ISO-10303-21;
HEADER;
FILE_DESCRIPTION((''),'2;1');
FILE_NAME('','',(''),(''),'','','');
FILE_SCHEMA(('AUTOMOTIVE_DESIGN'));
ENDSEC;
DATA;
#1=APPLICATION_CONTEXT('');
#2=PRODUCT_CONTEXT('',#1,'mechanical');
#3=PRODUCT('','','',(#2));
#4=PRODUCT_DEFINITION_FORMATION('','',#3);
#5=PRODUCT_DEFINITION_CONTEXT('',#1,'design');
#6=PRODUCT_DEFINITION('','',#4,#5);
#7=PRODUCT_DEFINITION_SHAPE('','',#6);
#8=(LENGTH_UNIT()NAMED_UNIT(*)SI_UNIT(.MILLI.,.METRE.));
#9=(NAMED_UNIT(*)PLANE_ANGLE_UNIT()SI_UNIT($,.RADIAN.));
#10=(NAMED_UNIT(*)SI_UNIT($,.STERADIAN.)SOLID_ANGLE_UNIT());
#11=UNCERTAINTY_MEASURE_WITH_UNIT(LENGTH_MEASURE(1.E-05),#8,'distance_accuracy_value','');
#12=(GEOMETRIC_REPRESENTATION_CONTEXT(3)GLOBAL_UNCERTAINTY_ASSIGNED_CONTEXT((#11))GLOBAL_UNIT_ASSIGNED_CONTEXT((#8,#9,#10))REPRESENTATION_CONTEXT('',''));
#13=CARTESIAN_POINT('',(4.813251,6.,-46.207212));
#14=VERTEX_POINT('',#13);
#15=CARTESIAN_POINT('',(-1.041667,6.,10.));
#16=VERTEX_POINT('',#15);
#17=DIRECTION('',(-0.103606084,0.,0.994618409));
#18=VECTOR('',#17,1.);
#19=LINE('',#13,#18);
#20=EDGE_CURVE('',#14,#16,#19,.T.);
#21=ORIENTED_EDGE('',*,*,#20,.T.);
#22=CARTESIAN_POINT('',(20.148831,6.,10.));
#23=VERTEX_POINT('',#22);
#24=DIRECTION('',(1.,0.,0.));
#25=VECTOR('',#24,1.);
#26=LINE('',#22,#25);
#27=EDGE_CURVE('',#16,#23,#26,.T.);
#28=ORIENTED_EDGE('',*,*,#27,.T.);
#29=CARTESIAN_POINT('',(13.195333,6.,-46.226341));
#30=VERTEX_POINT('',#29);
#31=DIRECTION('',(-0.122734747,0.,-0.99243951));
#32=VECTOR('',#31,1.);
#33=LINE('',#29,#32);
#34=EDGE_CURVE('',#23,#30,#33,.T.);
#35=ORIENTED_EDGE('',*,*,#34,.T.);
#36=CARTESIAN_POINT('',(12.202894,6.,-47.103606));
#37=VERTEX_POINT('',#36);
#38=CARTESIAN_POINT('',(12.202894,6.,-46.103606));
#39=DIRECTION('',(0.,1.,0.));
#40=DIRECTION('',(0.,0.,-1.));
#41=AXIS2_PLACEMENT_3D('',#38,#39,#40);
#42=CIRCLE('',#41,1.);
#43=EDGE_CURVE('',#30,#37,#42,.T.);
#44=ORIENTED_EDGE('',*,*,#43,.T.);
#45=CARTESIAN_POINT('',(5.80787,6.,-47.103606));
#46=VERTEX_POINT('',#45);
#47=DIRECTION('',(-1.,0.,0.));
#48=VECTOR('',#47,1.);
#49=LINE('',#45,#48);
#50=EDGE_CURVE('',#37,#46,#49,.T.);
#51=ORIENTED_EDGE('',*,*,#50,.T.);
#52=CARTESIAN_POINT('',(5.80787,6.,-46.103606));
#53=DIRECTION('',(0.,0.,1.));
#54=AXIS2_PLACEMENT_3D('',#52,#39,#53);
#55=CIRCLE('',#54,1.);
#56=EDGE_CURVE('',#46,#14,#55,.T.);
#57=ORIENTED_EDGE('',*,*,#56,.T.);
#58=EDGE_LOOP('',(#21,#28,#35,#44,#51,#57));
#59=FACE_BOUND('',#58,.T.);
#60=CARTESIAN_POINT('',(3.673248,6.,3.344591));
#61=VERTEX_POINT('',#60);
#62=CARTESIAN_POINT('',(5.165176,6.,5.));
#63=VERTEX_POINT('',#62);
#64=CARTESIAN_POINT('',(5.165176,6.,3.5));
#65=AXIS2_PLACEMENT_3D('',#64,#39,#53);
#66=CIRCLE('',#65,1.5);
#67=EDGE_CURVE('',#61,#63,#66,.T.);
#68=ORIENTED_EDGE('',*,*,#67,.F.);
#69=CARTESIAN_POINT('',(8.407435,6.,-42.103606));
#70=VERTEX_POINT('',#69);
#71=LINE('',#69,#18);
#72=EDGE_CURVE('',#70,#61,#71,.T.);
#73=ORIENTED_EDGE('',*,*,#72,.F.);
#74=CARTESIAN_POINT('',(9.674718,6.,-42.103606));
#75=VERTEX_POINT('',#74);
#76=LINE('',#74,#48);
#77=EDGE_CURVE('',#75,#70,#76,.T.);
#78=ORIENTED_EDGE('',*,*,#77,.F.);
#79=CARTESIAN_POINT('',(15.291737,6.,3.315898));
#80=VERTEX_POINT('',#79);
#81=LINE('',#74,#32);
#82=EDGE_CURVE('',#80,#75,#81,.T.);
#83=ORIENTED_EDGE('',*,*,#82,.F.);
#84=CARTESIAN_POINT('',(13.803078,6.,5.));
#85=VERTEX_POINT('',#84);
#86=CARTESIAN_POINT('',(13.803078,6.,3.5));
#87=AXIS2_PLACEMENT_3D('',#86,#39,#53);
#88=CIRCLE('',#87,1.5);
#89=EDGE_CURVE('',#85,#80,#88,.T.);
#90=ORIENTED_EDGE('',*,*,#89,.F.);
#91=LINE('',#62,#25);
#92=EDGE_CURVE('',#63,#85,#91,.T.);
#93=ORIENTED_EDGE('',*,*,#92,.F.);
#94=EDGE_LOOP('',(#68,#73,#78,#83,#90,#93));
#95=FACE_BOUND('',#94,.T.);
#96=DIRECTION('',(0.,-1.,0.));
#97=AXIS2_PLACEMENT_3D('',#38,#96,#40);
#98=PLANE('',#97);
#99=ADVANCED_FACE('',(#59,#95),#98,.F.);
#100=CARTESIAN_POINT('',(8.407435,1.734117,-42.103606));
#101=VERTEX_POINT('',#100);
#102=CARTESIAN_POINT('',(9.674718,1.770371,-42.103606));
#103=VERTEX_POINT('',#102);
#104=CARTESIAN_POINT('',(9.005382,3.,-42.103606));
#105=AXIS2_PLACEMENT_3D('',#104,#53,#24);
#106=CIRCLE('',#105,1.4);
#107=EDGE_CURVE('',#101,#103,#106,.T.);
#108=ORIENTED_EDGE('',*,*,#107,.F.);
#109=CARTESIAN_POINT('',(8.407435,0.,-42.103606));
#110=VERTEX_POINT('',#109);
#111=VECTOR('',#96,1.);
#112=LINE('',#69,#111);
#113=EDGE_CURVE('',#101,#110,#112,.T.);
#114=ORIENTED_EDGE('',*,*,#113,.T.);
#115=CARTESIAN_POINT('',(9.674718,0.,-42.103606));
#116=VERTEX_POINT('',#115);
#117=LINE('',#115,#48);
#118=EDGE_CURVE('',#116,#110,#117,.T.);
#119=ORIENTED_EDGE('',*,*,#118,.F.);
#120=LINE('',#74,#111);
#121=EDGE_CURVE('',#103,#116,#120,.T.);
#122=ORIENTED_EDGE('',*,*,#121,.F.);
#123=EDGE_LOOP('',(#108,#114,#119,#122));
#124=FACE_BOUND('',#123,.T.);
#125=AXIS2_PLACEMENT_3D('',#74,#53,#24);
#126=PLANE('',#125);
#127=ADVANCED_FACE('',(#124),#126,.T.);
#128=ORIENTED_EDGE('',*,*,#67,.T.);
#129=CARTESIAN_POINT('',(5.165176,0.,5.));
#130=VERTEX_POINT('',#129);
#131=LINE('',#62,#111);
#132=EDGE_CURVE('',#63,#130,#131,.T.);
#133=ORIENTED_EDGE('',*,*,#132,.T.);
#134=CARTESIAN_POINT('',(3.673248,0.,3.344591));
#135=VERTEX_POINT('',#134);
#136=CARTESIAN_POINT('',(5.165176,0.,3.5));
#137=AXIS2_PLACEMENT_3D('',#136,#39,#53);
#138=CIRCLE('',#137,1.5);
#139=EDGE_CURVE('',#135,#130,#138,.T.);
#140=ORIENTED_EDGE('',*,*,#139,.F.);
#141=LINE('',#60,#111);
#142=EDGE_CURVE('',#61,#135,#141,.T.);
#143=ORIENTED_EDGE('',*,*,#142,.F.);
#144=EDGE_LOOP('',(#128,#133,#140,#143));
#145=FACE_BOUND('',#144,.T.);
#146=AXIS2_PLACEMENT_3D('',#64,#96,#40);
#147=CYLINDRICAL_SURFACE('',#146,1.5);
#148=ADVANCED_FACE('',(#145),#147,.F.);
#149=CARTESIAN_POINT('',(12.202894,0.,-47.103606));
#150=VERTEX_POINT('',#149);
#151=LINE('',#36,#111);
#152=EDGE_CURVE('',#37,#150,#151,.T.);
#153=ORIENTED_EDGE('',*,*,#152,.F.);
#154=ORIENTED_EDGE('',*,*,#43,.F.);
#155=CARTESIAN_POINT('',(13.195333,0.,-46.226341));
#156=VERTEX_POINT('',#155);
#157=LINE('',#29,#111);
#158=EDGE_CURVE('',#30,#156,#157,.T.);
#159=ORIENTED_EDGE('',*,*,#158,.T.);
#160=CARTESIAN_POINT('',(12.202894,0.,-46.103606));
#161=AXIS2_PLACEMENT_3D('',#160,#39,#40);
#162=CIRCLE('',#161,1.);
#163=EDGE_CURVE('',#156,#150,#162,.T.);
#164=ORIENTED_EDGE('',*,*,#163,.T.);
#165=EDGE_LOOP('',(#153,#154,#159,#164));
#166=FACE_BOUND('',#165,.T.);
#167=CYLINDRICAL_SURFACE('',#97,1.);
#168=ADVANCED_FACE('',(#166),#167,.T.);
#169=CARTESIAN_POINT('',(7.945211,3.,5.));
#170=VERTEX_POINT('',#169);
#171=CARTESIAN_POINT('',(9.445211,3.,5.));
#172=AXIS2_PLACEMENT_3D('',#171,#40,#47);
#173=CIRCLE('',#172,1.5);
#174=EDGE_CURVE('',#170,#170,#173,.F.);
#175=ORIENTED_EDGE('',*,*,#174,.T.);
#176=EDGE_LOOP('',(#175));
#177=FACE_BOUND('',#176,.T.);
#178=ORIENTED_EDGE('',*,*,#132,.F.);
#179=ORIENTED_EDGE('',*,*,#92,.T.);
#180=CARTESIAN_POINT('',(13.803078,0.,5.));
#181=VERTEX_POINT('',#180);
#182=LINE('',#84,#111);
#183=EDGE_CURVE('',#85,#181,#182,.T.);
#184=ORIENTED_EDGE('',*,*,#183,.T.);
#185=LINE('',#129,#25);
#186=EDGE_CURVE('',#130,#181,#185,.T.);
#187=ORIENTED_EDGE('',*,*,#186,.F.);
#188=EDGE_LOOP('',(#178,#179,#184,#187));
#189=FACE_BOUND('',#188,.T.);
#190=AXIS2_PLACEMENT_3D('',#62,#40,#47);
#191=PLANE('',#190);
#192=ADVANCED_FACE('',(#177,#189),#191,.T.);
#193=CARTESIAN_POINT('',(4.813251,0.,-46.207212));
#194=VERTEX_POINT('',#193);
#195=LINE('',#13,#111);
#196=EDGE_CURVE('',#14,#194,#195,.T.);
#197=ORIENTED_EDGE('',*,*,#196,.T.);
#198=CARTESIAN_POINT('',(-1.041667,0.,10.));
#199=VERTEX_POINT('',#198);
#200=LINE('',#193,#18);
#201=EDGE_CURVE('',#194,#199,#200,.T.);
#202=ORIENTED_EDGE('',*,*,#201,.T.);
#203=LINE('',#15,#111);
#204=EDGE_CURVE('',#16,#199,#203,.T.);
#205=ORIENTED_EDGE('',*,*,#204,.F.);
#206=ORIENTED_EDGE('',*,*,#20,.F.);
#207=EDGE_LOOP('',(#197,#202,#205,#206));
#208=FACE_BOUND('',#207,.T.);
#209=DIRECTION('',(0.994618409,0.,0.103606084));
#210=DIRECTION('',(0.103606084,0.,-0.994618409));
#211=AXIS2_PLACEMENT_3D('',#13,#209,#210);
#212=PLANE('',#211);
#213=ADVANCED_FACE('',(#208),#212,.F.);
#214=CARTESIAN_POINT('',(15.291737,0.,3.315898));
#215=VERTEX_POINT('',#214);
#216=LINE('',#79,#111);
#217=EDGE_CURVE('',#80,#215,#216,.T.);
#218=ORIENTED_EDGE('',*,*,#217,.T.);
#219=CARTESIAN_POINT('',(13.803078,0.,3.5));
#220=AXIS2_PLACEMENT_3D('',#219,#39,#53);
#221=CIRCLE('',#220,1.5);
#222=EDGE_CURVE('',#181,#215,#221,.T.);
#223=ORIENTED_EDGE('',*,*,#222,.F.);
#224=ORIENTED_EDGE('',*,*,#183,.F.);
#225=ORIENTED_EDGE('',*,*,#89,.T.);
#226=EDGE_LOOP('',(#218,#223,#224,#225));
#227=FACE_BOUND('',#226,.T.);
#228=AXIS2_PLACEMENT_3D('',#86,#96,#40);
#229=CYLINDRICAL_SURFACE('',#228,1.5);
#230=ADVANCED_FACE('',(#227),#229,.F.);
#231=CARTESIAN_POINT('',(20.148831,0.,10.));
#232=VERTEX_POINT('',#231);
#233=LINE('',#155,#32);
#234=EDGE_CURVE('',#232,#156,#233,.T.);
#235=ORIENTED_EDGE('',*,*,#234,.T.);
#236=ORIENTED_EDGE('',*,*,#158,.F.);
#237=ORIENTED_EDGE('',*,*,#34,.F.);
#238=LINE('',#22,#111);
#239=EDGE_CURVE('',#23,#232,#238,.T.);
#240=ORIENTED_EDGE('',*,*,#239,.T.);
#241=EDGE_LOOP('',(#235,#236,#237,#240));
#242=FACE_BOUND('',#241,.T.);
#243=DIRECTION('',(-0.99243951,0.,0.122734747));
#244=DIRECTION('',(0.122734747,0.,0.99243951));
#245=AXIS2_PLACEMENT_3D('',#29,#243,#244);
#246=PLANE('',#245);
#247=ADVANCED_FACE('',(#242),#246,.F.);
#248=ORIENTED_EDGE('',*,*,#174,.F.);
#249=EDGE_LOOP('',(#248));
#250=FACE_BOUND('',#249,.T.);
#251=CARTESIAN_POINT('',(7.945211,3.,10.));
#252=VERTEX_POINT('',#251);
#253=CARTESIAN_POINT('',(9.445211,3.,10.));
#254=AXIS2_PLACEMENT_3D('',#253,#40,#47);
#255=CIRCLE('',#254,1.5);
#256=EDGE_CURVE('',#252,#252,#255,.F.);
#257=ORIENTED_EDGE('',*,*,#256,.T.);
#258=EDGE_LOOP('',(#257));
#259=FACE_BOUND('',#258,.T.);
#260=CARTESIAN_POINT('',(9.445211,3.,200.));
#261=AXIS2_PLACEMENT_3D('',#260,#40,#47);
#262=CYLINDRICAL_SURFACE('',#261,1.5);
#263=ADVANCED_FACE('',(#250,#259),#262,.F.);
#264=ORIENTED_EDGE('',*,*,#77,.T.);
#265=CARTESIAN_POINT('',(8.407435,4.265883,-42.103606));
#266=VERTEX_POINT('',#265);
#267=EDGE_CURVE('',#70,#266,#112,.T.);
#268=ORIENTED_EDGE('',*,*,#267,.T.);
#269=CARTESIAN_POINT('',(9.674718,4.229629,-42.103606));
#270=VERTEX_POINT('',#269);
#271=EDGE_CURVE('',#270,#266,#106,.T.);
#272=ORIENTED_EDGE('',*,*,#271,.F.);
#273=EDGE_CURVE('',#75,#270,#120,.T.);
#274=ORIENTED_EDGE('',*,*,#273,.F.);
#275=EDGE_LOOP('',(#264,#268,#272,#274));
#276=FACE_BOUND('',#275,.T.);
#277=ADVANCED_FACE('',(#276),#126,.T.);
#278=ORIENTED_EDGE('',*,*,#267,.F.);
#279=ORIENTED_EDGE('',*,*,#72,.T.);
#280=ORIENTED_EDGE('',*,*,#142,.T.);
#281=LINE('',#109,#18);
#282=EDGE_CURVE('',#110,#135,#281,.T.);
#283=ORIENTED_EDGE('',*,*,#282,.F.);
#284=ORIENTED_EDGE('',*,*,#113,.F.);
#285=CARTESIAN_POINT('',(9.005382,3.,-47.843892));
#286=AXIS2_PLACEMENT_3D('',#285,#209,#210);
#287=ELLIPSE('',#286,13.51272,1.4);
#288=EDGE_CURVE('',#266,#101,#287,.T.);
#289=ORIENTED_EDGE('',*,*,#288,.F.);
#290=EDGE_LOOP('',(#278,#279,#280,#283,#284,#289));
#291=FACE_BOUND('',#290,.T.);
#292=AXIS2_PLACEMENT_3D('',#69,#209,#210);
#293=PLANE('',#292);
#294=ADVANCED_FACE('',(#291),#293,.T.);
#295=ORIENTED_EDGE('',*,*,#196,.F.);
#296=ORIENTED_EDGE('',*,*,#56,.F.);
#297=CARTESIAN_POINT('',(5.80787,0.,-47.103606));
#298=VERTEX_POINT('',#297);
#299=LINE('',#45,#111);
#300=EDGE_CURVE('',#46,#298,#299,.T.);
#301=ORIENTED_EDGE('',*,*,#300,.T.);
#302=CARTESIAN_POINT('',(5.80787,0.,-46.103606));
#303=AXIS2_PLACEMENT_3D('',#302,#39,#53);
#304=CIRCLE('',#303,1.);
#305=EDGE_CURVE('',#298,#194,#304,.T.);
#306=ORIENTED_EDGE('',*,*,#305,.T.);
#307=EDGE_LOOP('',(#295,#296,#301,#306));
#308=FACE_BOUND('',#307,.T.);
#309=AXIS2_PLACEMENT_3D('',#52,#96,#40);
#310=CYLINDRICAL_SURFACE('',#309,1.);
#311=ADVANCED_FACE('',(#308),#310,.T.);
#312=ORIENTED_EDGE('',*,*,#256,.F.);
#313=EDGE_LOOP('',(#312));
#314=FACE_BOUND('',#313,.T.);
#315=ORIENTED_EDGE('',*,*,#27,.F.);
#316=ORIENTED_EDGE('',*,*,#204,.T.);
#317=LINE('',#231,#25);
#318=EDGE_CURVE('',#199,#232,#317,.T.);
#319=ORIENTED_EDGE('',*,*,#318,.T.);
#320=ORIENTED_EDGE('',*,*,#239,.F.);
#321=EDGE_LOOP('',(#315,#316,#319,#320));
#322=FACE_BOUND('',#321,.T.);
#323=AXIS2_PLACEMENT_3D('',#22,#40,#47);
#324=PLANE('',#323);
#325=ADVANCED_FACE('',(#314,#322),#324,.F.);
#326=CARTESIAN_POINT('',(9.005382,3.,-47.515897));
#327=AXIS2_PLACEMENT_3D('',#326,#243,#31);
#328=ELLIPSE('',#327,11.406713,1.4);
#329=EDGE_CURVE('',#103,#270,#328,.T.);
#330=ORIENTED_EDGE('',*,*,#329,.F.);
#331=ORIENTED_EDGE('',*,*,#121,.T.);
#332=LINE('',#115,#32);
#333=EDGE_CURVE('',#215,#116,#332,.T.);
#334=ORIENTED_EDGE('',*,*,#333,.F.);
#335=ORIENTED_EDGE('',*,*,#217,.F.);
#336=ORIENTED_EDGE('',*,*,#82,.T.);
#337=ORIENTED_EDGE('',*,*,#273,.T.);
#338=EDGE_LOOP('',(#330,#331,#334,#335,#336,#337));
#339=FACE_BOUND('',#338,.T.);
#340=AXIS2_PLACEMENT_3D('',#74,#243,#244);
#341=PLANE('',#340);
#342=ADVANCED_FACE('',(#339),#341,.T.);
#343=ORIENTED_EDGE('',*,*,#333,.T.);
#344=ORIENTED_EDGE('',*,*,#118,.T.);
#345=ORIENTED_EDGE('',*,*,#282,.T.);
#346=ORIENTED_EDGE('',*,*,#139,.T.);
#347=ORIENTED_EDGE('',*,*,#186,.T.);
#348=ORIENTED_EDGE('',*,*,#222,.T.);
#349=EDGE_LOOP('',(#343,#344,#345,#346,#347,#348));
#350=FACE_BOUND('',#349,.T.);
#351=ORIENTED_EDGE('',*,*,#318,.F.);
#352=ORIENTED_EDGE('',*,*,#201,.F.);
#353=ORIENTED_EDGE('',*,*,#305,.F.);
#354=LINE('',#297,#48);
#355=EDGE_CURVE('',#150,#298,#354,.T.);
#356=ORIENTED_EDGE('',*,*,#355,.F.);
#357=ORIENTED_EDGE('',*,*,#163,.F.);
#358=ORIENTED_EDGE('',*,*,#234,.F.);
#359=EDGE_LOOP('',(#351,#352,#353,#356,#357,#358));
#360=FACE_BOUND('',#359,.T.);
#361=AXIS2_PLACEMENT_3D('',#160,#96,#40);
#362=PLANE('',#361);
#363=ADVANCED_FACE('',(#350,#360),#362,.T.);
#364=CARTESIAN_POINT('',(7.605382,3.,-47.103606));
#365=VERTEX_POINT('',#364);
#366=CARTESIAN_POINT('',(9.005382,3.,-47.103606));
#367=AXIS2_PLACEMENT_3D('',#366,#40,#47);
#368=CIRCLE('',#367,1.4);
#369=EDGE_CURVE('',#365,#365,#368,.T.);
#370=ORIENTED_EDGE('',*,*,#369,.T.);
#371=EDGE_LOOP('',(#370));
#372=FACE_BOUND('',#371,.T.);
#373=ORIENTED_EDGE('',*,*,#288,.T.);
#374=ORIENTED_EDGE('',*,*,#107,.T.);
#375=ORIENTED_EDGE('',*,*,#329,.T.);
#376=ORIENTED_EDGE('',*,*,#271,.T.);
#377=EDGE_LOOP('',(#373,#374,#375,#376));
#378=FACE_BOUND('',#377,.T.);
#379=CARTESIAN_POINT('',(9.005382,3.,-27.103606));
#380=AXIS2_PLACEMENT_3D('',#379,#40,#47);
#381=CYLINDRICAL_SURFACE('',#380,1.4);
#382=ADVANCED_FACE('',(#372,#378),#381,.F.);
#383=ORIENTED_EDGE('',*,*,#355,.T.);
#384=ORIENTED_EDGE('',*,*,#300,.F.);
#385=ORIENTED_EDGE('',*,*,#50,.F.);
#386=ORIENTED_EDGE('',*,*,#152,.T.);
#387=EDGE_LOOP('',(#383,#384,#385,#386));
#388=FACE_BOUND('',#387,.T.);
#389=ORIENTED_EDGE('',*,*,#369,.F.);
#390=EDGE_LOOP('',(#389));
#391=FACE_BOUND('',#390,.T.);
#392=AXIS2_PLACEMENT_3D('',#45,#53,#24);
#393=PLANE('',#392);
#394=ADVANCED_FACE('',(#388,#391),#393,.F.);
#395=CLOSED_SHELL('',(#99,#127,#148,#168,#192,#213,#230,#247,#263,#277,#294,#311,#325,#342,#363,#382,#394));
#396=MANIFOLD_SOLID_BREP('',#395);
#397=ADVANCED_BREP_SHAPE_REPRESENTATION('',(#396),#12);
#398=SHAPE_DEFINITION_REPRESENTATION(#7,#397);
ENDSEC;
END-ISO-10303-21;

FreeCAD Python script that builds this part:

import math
import FreeCAD as App
import Part
import Sketcher
Q = App.Units.Quantity

doc = App.newDocument("Part")
body = doc.addObject("PartDesign::Body", "Body")

sketch1 = doc.addObject("Sketcher::SketchObject", "Sketch")
body.addObject(sketch1)
sketch1.AttachmentSupport = (doc.XZ_Plane, [""])
sketch1.MapMode = "FlatFace"
sketch1.addGeometry(Part.LineSegment(App.Vector(12.202894, -47.103606, 0), App.Vector(5.80787, -47.103606, 0)), False)
sketch1.addGeometry(Part.ArcOfCircle(Part.Circle(App.Vector(5.80787, -46.103606, 0), App.Vector(0, 0, 1), 1), math.radians(-174.053137), math.radians(-90)), False)
sketch1.addGeometry(Part.LineSegment(App.Vector(4.813251, -46.207212, 0), App.Vector(-1.041667, 10, 0)), False)
sketch1.addGeometry(Part.LineSegment(App.Vector(-1.041667, 10, 0), App.Vector(20.148831, 10, 0)), False)
sketch1.addGeometry(Part.LineSegment(App.Vector(20.148831, 10, 0), App.Vector(13.195333, -46.226341, 0)), False)
sketch1.addGeometry(Part.ArcOfCircle(Part.Circle(App.Vector(12.202894, -46.103606, 0), App.Vector(0, 0, 1), 1), math.radians(-90), math.radians(-7.049959)), False)
sketch1.addGeometry(Part.LineSegment(App.Vector(9.674718, -42.103606, 0), App.Vector(15.291737, 3.315898, 0)), False)
sketch1.addGeometry(Part.ArcOfCircle(Part.Circle(App.Vector(13.803078, 3.5, 0), App.Vector(0, 0, 1), 1.5), math.radians(-7.049959), math.radians(90)), False)
sketch1.addGeometry(Part.LineSegment(App.Vector(13.803078, 5, 0), App.Vector(5.165176, 5, 0)), False)
sketch1.addGeometry(Part.ArcOfCircle(Part.Circle(App.Vector(5.165176, 3.5, 0), App.Vector(0, 0, 1), 1.5), math.radians(90), math.radians(185.946863)), False)
sketch1.addGeometry(Part.LineSegment(App.Vector(3.673248, 3.344591, 0), App.Vector(8.407435, -42.103606, 0)), False)
sketch1.addGeometry(Part.LineSegment(App.Vector(8.407435, -42.103606, 0), App.Vector(9.674718, -42.103606, 0)), False)
sketch1.addConstraint(Sketcher.Constraint("Tangent", 0, 2, 1, 2))
sketch1.addConstraint(Sketcher.Constraint("Tangent", 1, 1, 2, 1))
sketch1.addConstraint(Sketcher.Constraint("Coincident", 2, 2, 3, 1))
sketch1.addConstraint(Sketcher.Constraint("Coincident", 3, 2, 4, 1))
sketch1.addConstraint(Sketcher.Constraint("Tangent", 4, 2, 5, 2))
sketch1.addConstraint(Sketcher.Constraint("Tangent", 5, 1, 0, 1))
sketch1.addConstraint(Sketcher.Constraint("Tangent", 6, 2, 7, 1))
sketch1.addConstraint(Sketcher.Constraint("Tangent", 7, 2, 8, 1))
sketch1.addConstraint(Sketcher.Constraint("Tangent", 8, 2, 9, 1))
sketch1.addConstraint(Sketcher.Constraint("Tangent", 9, 2, 10, 1))
sketch1.addConstraint(Sketcher.Constraint("Coincident", 10, 2, 11, 1))
sketch1.addConstraint(Sketcher.Constraint("Coincident", 11, 2, 6, 1))
sketch1.addConstraint(Sketcher.Constraint("Horizontal", 0))
sketch1.addConstraint(Sketcher.Constraint("Horizontal", 3))
sketch1.addConstraint(Sketcher.Constraint("Horizontal", 8))
sketch1.addConstraint(Sketcher.Constraint("Horizontal", 11))
sketch1.addConstraint(Sketcher.Constraint("Equal", 1, 5))
sketch1.addConstraint(Sketcher.Constraint("Equal", 7, 9))
sketch1.addConstraint(Sketcher.Constraint("Parallel", 4, 6))
sketch1.addConstraint(Sketcher.Constraint("Parallel", 2, 10))
sketch1.addConstraint(Sketcher.Constraint("Radius", 1, Q("1 mm")))
sketch1.addConstraint(Sketcher.Constraint("Radius", 7, Q("1.5 mm")))
sketch1.addConstraint(Sketcher.Constraint("DistanceY", -1, 1, 2, 2, Q("10 mm")))
sketch1.addConstraint(Sketcher.Constraint("DistanceY", -1, 1, 7, 2, Q("5 mm")))
sketch1.addConstraint(Sketcher.Constraint("DistanceY", 1, 3, 10, 2, Q("4 mm")))
sketch1.addConstraint(Sketcher.Constraint("DistanceX", 0, 2, 0, 1, Q("6.395024 mm")))
sketch1.addConstraint(Sketcher.Constraint("DistanceX", 3, 1, 3, 2, Q("21.190497 mm")))
sketch1.addConstraint(Sketcher.Constraint("DistanceX", 8, 2, 8, 1, Q("8.637902 mm")))
sketch1.addConstraint(Sketcher.Constraint("DistanceX", 11, 1, 11, 2, Q("1.267283 mm")))
sketch1.addConstraint(Sketcher.Constraint("DistanceX", -1, 1, 1, 3, Q("5.80787 mm")))
sketch1.addConstraint(Sketcher.Constraint("DistanceX", -1, 1, 3, 2, Q("20.148831 mm")))
sketch1.addConstraint(Sketcher.Constraint("DistanceX", -1, 1, 11, 2, Q("9.674718 mm")))
pad1 = doc.addObject("PartDesign::Pad", "Pad")
body.addObject(pad1)
pad1.Profile = sketch1
pad1.Length = 6
pad1.Reversed = True

sketch2 = doc.addObject("Sketcher::SketchObject", "Sketch001")
body.addObject(sketch2)
sketch2.AttachmentSupport = (doc.XY_Plane, [""])
sketch2.MapMode = "FlatFace"
sketch2.AttachmentOffset = App.Placement(App.Vector(0, 0, -47.103606), App.Rotation())
sketch2.addGeometry(Part.Circle(App.Vector(9.005382, 3, 0), App.Vector(0, 0, 1), 1.4), False)
sketch2.addConstraint(Sketcher.Constraint("Diameter", 0, Q("2.8 mm")))
sketch2.addConstraint(Sketcher.Constraint("DistanceY", -1, 1, 0, 3, Q("3 mm")))
sketch2.addConstraint(Sketcher.Constraint("DistanceX", -1, 1, 0, 3, Q("9.005382 mm")))
pocket1 = doc.addObject("PartDesign::Pocket", "Pocket")
body.addObject(pocket1)
pocket1.Profile = sketch2
pocket1.Length = 20
pocket1.Reversed = True

sketch3 = doc.addObject("Sketcher::SketchObject", "Sketch002")
body.addObject(sketch3)
sketch3.AttachmentSupport = (doc.XY_Plane, [""])
sketch3.MapMode = "FlatFace"
sketch3.addGeometry(Part.Circle(App.Vector(9.445211, 3, 0), App.Vector(0, 0, 1), 1.5), False)
sketch3.addConstraint(Sketcher.Constraint("Diameter", 0, Q("3 mm")))
sketch3.addConstraint(Sketcher.Constraint("DistanceY", -1, 1, 0, 3, Q("3 mm")))
sketch3.addConstraint(Sketcher.Constraint("DistanceX", -1, 1, 0, 3, Q("9.445211 mm")))
pocket2 = doc.addObject("PartDesign::Pocket", "Pocket001")
body.addObject(pocket2)
pocket2.Profile = sketch3
pocket2.Length = 200
pocket2.Reversed = True

doc.recompute()
